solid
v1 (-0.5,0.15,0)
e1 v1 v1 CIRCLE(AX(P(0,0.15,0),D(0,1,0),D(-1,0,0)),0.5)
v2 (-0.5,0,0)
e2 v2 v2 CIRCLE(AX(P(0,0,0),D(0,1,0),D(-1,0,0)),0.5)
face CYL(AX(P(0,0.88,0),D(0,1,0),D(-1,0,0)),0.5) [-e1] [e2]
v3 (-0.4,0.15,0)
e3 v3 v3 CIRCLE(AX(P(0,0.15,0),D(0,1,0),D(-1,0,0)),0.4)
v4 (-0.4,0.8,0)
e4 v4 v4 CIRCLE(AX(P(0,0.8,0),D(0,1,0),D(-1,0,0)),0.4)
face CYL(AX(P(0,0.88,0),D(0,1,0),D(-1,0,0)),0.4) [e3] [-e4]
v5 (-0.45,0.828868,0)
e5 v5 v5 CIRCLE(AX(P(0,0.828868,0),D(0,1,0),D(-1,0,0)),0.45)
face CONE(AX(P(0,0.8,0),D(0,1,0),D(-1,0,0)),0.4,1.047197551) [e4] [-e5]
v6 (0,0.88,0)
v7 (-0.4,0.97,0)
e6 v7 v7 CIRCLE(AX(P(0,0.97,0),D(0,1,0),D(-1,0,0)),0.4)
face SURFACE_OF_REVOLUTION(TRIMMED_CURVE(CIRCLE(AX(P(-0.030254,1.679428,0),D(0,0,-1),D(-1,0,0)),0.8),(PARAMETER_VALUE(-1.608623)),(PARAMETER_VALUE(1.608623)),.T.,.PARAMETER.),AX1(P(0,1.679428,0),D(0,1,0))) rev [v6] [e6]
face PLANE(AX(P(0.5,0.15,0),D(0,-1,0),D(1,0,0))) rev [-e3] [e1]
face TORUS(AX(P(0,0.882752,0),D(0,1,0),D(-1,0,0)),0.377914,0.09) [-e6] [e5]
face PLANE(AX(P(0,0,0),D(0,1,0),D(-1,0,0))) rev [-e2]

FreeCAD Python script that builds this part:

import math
import FreeCAD as App
import Part
import Sketcher

V = App.Vector
Q = App.Units.Quantity

doc = App.newDocument("Part")
body = doc.addObject("PartDesign::Body", "Body")

# Sketch on XY plane
sketch1 = body.newObject("Sketcher::SketchObject", "Sketch")
sketch1.AttachmentSupport = (doc.getObject("XY_Plane"), [""])
sketch1.MapMode = "FlatFace"
sketch1.addGeometry(Part.LineSegment(V(0, 0.88, 0), V(0, 0, 0)), False)
sketch1.addGeometry(Part.LineSegment(V(0, 0, 0), V(0.5, 0, 0)), False)
sketch1.addGeometry(Part.LineSegment(V(0.5, 0, 0), V(0.5, 0.15, 0)), False)
sketch1.addGeometry(Part.LineSegment(V(0.5, 0.15, 0), V(0.4, 0.15, 0)), False)
sketch1.addGeometry(Part.LineSegment(V(0.4, 0.15, 0), V(0.4, 0.8, 0)), False)
sketch1.addGeometry(Part.LineSegment(V(0.4, 0.8, 0), V(0.45, 0.83, 0)), False)
sketch1.addGeometry(Part.ArcOfCircle(Part.Circle(V(0.38, 0.88, 0), V(0, 0, 1), 0.09), math.radians(-37), math.radians(76)), False)
sketch1.addGeometry(Part.ArcOfCircle(Part.Circle(V(0.03, 1.68, 0), V(0, 0, 1), 0.8), math.radians(-92), math.radians(-62)), False)
sketch1.addConstraint(Sketcher.Constraint("Coincident", 0, 2, 1, 1))
sketch1.addConstraint(Sketcher.Constraint("Coincident", 1, 2, 2, 1))
sketch1.addConstraint(Sketcher.Constraint("Coincident", 2, 2, 3, 1))
sketch1.addConstraint(Sketcher.Constraint("Coincident", 3, 2, 4, 1))
sketch1.addConstraint(Sketcher.Constraint("Coincident", 4, 2, 5, 1))
sketch1.addConstraint(Sketcher.Constraint("Coincident", 5, 2, 6, 1))
sketch1.addConstraint(Sketcher.Constraint("Coincident", 6, 2, 7, 2))
sketch1.addConstraint(Sketcher.Constraint("Coincident", 7, 1, 0, 1))
sketch1.addConstraint(Sketcher.Constraint("Vertical", 0))
sketch1.addConstraint(Sketcher.Constraint("Horizontal", 1))
sketch1.addConstraint(Sketcher.Constraint("Vertical", 2))
sketch1.addConstraint(Sketcher.Constraint("Horizontal", 3))
sketch1.addConstraint(Sketcher.Constraint("Vertical", 4))
sketch1.addConstraint(Sketcher.Constraint("Coincident", 0, 2, -1, 1))
sketch1.addConstraint(Sketcher.Constraint("Vertical", 4, 2, 6, 2))
sketch1.addConstraint(Sketcher.Constraint("Radius", 7, 0.8))
sketch1.addConstraint(Sketcher.Constraint("Angle", 5, Q("30 deg")))
sketch1.addConstraint(Sketcher.Constraint("Radius", 6, 0.09))
sketch1.addConstraint(Sketcher.Constraint("DistanceX", 1, 1, 1, 2, 0.5))
sketch1.addConstraint(Sketcher.Constraint("DistanceX", 3, 2, 3, 1, 0.1))
sketch1.addConstraint(Sketcher.Constraint("DistanceY", 0, 2, 0, 1, 0.88))
sketch1.addConstraint(Sketcher.Constraint("DistanceY", 2, 1, 2, 2, 0.15))
sketch1.addConstraint(Sketcher.Constraint("DistanceY", 4, 1, 4, 2, 0.65))
sketch1.addConstraint(Sketcher.Constraint("DistanceX", -1, 1, 5, 2, 0.45))
sketch1.addConstraint(Sketcher.Constraint("DistanceY", -1, 1, 6, 2, 0.97))
revolution = body.newObject("PartDesign::Revolution", "Revolution")
revolution.Profile = sketch1
revolution.ReferenceAxis = (sketch1, ["V_Axis"])
revolution.Angle = 360

doc.recompute()
